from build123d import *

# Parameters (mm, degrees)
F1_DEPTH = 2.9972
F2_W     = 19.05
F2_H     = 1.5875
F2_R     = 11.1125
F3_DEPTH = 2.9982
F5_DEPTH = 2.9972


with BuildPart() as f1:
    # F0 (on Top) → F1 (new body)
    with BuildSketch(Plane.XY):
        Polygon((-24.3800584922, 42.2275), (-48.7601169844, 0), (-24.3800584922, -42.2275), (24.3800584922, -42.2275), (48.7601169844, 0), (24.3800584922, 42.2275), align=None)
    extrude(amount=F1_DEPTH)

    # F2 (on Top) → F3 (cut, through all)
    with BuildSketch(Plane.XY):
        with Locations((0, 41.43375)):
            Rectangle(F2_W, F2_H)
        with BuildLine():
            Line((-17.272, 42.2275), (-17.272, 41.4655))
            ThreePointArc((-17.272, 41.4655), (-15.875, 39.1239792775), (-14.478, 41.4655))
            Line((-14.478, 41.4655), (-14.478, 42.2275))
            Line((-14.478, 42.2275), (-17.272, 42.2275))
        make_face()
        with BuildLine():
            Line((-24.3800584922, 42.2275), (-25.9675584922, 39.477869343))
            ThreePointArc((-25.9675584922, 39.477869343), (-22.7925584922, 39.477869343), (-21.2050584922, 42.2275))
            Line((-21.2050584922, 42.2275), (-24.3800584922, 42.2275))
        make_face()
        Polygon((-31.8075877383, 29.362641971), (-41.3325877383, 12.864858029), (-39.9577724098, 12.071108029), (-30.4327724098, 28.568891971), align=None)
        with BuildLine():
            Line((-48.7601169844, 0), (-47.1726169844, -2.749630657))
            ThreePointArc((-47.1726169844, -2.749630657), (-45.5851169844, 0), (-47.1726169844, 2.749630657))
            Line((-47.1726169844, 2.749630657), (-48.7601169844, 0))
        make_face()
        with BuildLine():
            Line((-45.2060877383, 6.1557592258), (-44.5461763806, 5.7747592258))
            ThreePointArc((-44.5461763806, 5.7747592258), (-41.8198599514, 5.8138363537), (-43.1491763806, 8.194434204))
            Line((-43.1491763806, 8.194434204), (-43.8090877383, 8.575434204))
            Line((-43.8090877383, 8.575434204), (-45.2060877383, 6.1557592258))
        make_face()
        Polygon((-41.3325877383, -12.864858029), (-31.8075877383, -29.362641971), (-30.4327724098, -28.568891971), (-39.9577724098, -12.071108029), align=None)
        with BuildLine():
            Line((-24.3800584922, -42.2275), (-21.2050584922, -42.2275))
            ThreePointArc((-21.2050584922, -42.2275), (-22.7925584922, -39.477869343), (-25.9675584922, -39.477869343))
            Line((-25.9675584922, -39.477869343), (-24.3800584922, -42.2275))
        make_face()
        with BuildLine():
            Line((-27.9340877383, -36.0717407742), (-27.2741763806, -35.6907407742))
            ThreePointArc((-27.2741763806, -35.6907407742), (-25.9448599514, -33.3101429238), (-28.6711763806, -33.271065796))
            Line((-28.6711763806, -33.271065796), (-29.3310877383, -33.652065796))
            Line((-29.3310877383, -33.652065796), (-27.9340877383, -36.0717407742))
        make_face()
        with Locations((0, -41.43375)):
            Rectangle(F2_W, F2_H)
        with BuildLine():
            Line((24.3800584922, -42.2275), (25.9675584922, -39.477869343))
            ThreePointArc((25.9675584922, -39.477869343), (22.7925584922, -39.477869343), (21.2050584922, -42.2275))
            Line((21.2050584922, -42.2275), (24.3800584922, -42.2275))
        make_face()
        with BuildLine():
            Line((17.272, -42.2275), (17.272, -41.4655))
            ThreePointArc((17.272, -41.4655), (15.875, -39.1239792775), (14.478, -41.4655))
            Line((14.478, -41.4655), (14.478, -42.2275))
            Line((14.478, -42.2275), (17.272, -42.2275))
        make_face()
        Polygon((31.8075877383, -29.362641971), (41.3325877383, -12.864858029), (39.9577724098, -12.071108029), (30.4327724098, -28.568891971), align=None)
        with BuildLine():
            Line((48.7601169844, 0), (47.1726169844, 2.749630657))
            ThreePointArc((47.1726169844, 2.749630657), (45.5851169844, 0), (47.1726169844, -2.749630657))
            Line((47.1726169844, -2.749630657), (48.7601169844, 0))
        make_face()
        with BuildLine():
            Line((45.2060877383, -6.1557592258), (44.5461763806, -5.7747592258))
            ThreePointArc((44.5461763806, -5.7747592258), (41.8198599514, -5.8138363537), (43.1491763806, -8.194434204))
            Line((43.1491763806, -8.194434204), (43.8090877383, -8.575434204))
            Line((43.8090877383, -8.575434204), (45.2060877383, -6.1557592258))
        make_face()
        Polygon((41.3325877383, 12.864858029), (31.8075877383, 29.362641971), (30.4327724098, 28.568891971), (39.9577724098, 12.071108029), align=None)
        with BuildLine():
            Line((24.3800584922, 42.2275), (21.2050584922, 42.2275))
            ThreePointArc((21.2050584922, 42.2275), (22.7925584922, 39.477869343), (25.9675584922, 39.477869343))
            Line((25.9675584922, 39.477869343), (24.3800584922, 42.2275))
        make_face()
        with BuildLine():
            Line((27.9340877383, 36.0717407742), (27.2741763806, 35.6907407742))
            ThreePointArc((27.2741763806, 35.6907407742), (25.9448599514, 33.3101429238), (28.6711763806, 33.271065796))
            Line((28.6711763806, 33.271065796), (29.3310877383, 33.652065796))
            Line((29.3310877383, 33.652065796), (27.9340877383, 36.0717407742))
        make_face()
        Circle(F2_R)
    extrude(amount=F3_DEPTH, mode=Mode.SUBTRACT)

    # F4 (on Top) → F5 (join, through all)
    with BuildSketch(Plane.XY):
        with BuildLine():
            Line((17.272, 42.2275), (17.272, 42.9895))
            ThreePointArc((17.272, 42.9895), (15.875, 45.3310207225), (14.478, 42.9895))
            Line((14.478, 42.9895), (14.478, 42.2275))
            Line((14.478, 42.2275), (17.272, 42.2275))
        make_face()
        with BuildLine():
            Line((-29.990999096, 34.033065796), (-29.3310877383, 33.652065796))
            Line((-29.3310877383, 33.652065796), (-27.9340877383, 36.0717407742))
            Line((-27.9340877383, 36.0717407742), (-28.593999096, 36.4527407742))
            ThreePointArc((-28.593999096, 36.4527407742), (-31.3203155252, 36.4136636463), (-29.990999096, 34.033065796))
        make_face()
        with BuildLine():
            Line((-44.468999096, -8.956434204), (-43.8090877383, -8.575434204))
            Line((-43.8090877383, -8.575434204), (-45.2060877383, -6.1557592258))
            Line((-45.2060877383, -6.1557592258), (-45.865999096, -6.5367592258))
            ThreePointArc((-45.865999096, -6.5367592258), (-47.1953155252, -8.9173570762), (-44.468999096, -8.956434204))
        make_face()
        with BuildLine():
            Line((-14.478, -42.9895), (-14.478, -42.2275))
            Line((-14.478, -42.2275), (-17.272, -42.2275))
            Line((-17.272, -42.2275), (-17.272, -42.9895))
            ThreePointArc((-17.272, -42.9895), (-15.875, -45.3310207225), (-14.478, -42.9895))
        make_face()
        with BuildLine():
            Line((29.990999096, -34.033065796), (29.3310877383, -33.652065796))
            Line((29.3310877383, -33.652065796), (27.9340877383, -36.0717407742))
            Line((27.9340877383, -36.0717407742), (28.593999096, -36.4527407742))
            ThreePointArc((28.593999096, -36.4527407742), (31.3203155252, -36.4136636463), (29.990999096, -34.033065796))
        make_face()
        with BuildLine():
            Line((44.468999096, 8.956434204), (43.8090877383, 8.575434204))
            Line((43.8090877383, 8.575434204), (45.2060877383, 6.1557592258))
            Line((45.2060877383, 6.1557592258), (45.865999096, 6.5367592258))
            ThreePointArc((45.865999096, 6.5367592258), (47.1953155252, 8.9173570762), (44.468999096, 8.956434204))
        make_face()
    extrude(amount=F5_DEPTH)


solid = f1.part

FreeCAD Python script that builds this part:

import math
import FreeCAD as App
import Part
import Sketcher
from FreeCAD import Vector
Q = App.Units.Quantity

doc = App.newDocument("Part")
params = doc.addObject("Spreadsheet::Sheet", "Params")
for row, (alias, value) in enumerate([
    ("pad1_length", "0.118 in"),
    ("sketch2_diameter", "0.875 in"),
    ("sketch2_radius", "0.0625 in"),
    ("sketch2_radius2", "0.125 in"),
    ("sketch2_width", "0.75 in"),
    ("sketch2_width2", "0.11 in"),
    ("sketch3_radius", "0.0625 in"),
    ("sketch3_width", "0.11 in"),
    ("sketch3_height", "0.03 in"),
    ("sketch3_length", "0.03 in"),
    ("sketch3_length2", "0.11 in"),
    ("pad2_length", "0.118 in"),
], start=1):
    params.set(f"A{row}", alias)
    params.set(f"B{row}", "=" + value)
    params.setAlias(f"B{row}", alias)

body = doc.addObject("PartDesign::Body", "Body")

# Sketch on XY plane
sketch1 = doc.addObject("Sketcher::SketchObject", "Sketch")
body.addObject(sketch1)
sketch1.AttachmentSupport = (doc.XY_Plane, [""])
sketch1.MapMode = "FlatFace"
sketch1.addGeometry(Part.LineSegment(Vector(-24, 42, 0), Vector(-49, 0, 0)), False)
sketch1.addGeometry(Part.LineSegment(Vector(-49, 0, 0), Vector(-24, -42, 0)), False)
sketch1.addGeometry(Part.LineSegment(Vector(-24, -42, 0), Vector(24, -42, 0)), False)
sketch1.addGeometry(Part.LineSegment(Vector(24, -42, 0), Vector(49, 0, 0)), False)
sketch1.addGeometry(Part.LineSegment(Vector(49, 0, 0), Vector(24, 42, 0)), False)
sketch1.addGeometry(Part.LineSegment(Vector(24, 42, 0), Vector(-24, 42, 0)), False)
sketch1.addConstraint(Sketcher.Constraint("Coincident", 0, 2, 1, 1))
sketch1.addConstraint(Sketcher.Constraint("Coincident", 1, 2, 2, 1))
sketch1.addConstraint(Sketcher.Constraint("Coincident", 2, 2, 3, 1))
sketch1.addConstraint(Sketcher.Constraint("Coincident", 3, 2, 4, 1))
sketch1.addConstraint(Sketcher.Constraint("Coincident", 4, 2, 5, 1))
sketch1.addConstraint(Sketcher.Constraint("Coincident", 5, 2, 0, 1))
sketch1.addConstraint(Sketcher.Constraint("Horizontal", 2))
sketch1.addConstraint(Sketcher.Constraint("Horizontal", 5))
sketch1.addConstraint(Sketcher.Constraint("Symmetric", 0, 2, 3, 2, -1, 1))
sketch1.addConstraint(Sketcher.Constraint("Symmetric", 1, 2, 4, 2, -1, 1))
sketch1.addConstraint(Sketcher.Constraint("PointOnObject", 0, 2, -1))
sketch1.addConstraint(Sketcher.Constraint("Parallel", 0, 3))
sketch1.addConstraint(Sketcher.Constraint("Vertical", 2, 2, 4, 2))
sketch1.addConstraint(Sketcher.Constraint("Angle", 0, Q("-120 deg")))
sketch1.addConstraint(Sketcher.Constraint("DistanceY", 2, 2, 4, 2, Q("3.325 in")))
sketch1.addConstraint(Sketcher.Constraint("DistanceX", 2, 1, 2, 2, 48.760117))
pad1 = doc.addObject("PartDesign::Pad", "Pad")
body.addObject(pad1)
pad1.Profile = sketch1
pad1.setExpression("Length", "Params.pad1_length")

# Sketch on XY plane
sketch2 = doc.addObject("Sketcher::SketchObject", "Sketch001")
body.addObject(sketch2)
sketch2.AttachmentSupport = (doc.XY_Plane, [""])
sketch2.MapMode = "FlatFace"
sketch2.addGeometry(Part.LineSegment(Vector(-9.5, 42.2, 0), Vector(-9.5, 40.6, 0)), False)
sketch2.addGeometry(Part.LineSegment(Vector(-9.5, 40.6, 0), Vector(9.5, 40.6, 0)), False)
sketch2.addGeometry(Part.LineSegment(Vector(9.5, 40.6, 0), Vector(9.5, 42.2, 0)), False)
sketch2.addGeometry(Part.LineSegment(Vector(9.5, 42.2, 0), Vector(-9.5, 42.2, 0)), False)
sketch2.addGeometry(Part.LineSegment(Vector(-17.3, 42.2, 0), Vector(-17.3, 41.5, 0)), False)
sketch2.addGeometry(Part.ArcOfCircle(Part.Circle(Vector(-15.9, 40.7, 0), Vector(0, 0, 1), 1.6), math.radians(152), math.radians(388)), False)
sketch2.addGeometry(Part.LineSegment(Vector(-14.5, 41.5, 0), Vector(-14.5, 42.2, 0)), False)
sketch2.addGeometry(Part.LineSegment(Vector(-14.5, 42.2, 0), Vector(-17.3, 42.2, 0)), False)
sketch2.addGeometry(Part.LineSegment(Vector(-24.4, 42.2, 0), Vector(-26, 39.5, 0)), False)
sketch2.addGeometry(Part.ArcOfCircle(Part.Circle(Vector(-24.4, 42.2, 0), Vector(0, 0, 1), 3.2), math.radians(-120), math.radians(0)), False)
sketch2.addGeometry(Part.LineSegment(Vector(-21.2, 42.2, 0), Vector(-24.4, 42.2, 0)), False)
sketch2.addGeometry(Part.LineSegment(Vector(-31.8, 29.4, 0), Vector(-41.3, 12.9, 0)), False)
sketch2.addGeometry(Part.LineSegment(Vector(-41.3, 12.9, 0), Vector(-40, 12.1, 0)), False)
sketch2.addGeometry(Part.LineSegment(Vector(-40, 12.1, 0), Vector(-30.4, 28.6, 0)), False)
sketch2.addGeometry(Part.LineSegment(Vector(-30.4, 28.6, 0), Vector(-31.8, 29.4, 0)), False)
sketch2.addGeometry(Part.LineSegment(Vector(-48.8, 0, 0), Vector(-47.2, -2.7, 0)), False)
sketch2.addGeometry(Part.ArcOfCircle(Part.Circle(Vector(-48.8, 0, 0), Vector(0, 0, 1), 3.2), math.radians(-60), math.radians(60)), False)
sketch2.addGeometry(Part.LineSegment(Vector(-47.2, 2.7, 0), Vector(-48.8, 0, 0)), False)
sketch2.addGeometry(Part.LineSegment(Vector(-45.2, 6.2, 0), Vector(-44.5, 5.8, 0)), False)
sketch2.addGeometry(Part.ArcOfCircle(Part.Circle(Vector(-43.2, 6.6, 0), Vector(0, 0, 1), 1.6), math.radians(-148), math.radians(88)), False)
sketch2.addGeometry(Part.LineSegment(Vector(-43.1, 8.2, 0), Vector(-43.8, 8.6, 0)), False)
sketch2.addGeometry(Part.LineSegment(Vector(-43.8, 8.6, 0), Vector(-45.2, 6.2, 0)), False)
sketch2.addGeometry(Part.LineSegment(Vector(-41.3, -12.9, 0), Vector(-31.8, -29.4, 0)), False)
sketch2.addGeometry(Part.LineSegment(Vector(-31.8, -29.4, 0), Vector(-30.4, -28.6, 0)), False)
sketch2.addGeometry(Part.LineSegment(Vector(-30.4, -28.6, 0), Vector(-40, -12.1, 0)), False)
sketch2.addGeometry(Part.LineSegment(Vector(-40, -12.1, 0), Vector(-41.3, -12.9, 0)), False)
sketch2.addGeometry(Part.LineSegment(Vector(-24.4, -42.2, 0), Vector(-21.2, -42.2, 0)), False)
sketch2.addGeometry(Part.ArcOfCircle(Part.Circle(Vector(-24.4, -42.2, 0), Vector(0, 0, 1), 3.2), math.radians(0), math.radians(120)), False)
sketch2.addGeometry(Part.LineSegment(Vector(-26, -39.5, 0), Vector(-24.4, -42.2, 0)), False)
sketch2.addGeometry(Part.LineSegment(Vector(-27.9, -36.1, 0), Vector(-27.3, -35.7, 0)), False)
sketch2.addGeometry(Part.ArcOfCircle(Part.Circle(Vector(-27.3, -34.1, 0), Vector(0, 0, 1), 1.6), math.radians(-88), math.radians(148)), False)
sketch2.addGeometry(Part.LineSegment(Vector(-28.7, -33.3, 0), Vector(-29.3, -33.7, 0)), False)
sketch2.addGeometry(Part.LineSegment(Vector(-29.3, -33.7, 0), Vector(-27.9, -36.1, 0)), False)
sketch2.addGeometry(Part.LineSegment(Vector(-9.5, -40.6, 0), Vector(-9.5, -42.2, 0)), False)
sketch2.addGeometry(Part.LineSegment(Vector(-9.5, -42.2, 0), Vector(9.5, -42.2, 0)), False)
sketch2.addGeometry(Part.LineSegment(Vector(9.5, -42.2, 0), Vector(9.5, -40.6, 0)), False)
sketch2.addGeometry(Part.LineSegment(Vector(9.5, -40.6, 0), Vector(-9.5, -40.6, 0)), False)
sketch2.addGeometry(Part.LineSegment(Vector(24.4, -42.2, 0), Vector(26, -39.5, 0)), False)
sketch2.addGeometry(Part.ArcOfCircle(Part.Circle(Vector(24.4, -42.2, 0), Vector(0, 0, 1), 3.2), math.radians(60), math.radians(180)), False)
sketch2.addGeometry(Part.LineSegment(Vector(21.2, -42.2, 0), Vector(24.4, -42.2, 0)), False)
sketch2.addGeometry(Part.LineSegment(Vector(17.3, -42.2, 0), Vector(17.3, -41.5, 0)), False)
sketch2.addGeometry(Part.ArcOfCircle(Part.Circle(Vector(15.9, -40.7, 0), Vector(0, 0, 1), 1.6), math.radians(-28), math.radians(208)), False)
sketch2.addGeometry(Part.LineSegment(Vector(14.5, -41.5, 0), Vector(14.5, -42.2, 0)), False)
sketch2.addGeometry(Part.LineSegment(Vector(14.5, -42.2, 0), Vector(17.3, -42.2, 0)), False)
sketch2.addGeometry(Part.LineSegment(Vector(31.8, -29.4, 0), Vector(41.3, -12.9, 0)), False)
sketch2.addGeometry(Part.LineSegment(Vector(41.3, -12.9, 0), Vector(40, -12.1, 0)), False)
sketch2.addGeometry(Part.LineSegment(Vector(40, -12.1, 0), Vector(30.4, -28.6, 0)), False)
sketch2.addGeometry(Part.LineSegment(Vector(30.4, -28.6, 0), Vector(31.8, -29.4, 0)), False)
sketch2.addGeometry(Part.LineSegment(Vector(48.8, 0, 0), Vector(47.2, 2.7, 0)), False)
sketch2.addGeometry(Part.ArcOfCircle(Part.Circle(Vector(48.8, 0, 0), Vector(0, 0, 1), 3.2), math.radians(120), math.radians(240)), False)
sketch2.addGeometry(Part.LineSegment(Vector(47.2, -2.7, 0), Vector(48.8, 0, 0)), False)
sketch2.addGeometry(Part.LineSegment(Vector(45.2, -6.2, 0), Vector(44.5, -5.8, 0)), False)
sketch2.addGeometry(Part.ArcOfCircle(Part.Circle(Vector(43.2, -6.6, 0), Vector(0, 0, 1), 1.6), math.radians(32), math.radians(268)), False)
sketch2.addGeometry(Part.LineSegment(Vector(43.1, -8.2, 0), Vector(43.8, -8.6, 0)), False)
sketch2.addGeometry(Part.LineSegment(Vector(43.8, -8.6, 0), Vector(45.2, -6.2, 0)), False)
sketch2.addGeometry(Part.LineSegment(Vector(41.3, 12.9, 0), Vector(31.8, 29.4, 0)), False)
sketch2.addGeometry(Part.LineSegment(Vector(31.8, 29.4, 0), Vector(30.4, 28.6, 0)), False)
sketch2.addGeometry(Part.LineSegment(Vector(30.4, 28.6, 0), Vector(40, 12.1, 0)), False)
sketch2.addGeometry(Part.LineSegment(Vector(40, 12.1, 0), Vector(41.3, 12.9, 0)), False)
sketch2.addGeometry(Part.LineSegment(Vector(24.4, 42.2, 0), Vector(21.2, 42.2, 0)), False)
sketch2.addGeometry(Part.ArcOfCircle(Part.Circle(Vector(24.4, 42.2, 0), Vector(0, 0, 1), 3.2), math.radians(180), math.radians(300)), False)
sketch2.addGeometry(Part.LineSegment(Vector(26, 39.5, 0), Vector(24.4, 42.2, 0)), False)
sketch2.addGeometry(Part.LineSegment(Vector(27.9, 36.1, 0), Vector(27.3, 35.7, 0)), False)
sketch2.addGeometry(Part.ArcOfCircle(Part.Circle(Vector(27.3, 34.1, 0), Vector(0, 0, 1), 1.6), math.radians(92), math.radians(328)), False)
sketch2.addGeometry(Part.LineSegment(Vector(28.7, 33.3, 0), Vector(29.3, 33.7, 0)), False)
sketch2.addGeometry(Part.LineSegment(Vector(29.3, 33.7, 0), Vector(27.9, 36.1, 0)), False)
sketch2.addGeometry(Part.Circle(Vector(0, 0, 0), Vector(0, 0, 1), 11.1), False)
sketch2.addConstraint(Sketcher.Constraint("Coincident", 0, 2, 1, 1))
sketch2.addConstraint(Sketcher.Constraint("Coincident", 1, 2, 2, 1))
sketch2.addConstraint(Sketcher.Constraint("Coincident", 2, 2, 3, 1))
sketch2.addConstraint(Sketcher.Constraint("Coincident", 3, 2, 0, 1))
sketch2.addConstraint(Sketcher.Constraint("Coincident", 4, 2, 5, 1))
sketch2.addConstraint(Sketcher.Constraint("Coincident", 5, 2, 6, 1))
sketch2.addConstraint(Sketcher.Constraint("Coincident", 6, 2, 7, 1))
sketch2.addConstraint(Sketcher.Constraint("Coincident", 7, 2, 4, 1))
sketch2.addConstraint(Sketcher.Constraint("Coincident", 8, 2, 9, 1))
sketch2.addConstraint(Sketcher.Constraint("Coincident", 9, 2, 10, 1))
sketch2.addConstraint(Sketcher.Constraint("Coincident", 10, 2, 8, 1))
sketch2.addConstraint(Sketcher.Constraint("Coincident", 11, 2, 12, 1))
sketch2.addConstraint(Sketcher.Constraint("Coincident", 12, 2, 13, 1))
sketch2.addConstraint(Sketcher.Constraint("Coincident", 13, 2, 14, 1))
sketch2.addConstraint(Sketcher.Constraint("Coincident", 14, 2, 11, 1))
sketch2.addConstraint(Sketcher.Constraint("Coincident", 15, 2, 16, 1))
sketch2.addConstraint(Sketcher.Constraint("Coincident", 16, 2, 17, 1))
sketch2.addConstraint(Sketcher.Constraint("Coincident", 17, 2, 15, 1))
sketch2.addConstraint(Sketcher.Constraint("Coincident", 18, 2, 19, 1))
sketch2.addConstraint(Sketcher.Constraint("Coincident", 19, 2, 20, 1))
sketch2.addConstraint(Sketcher.Constraint("Coincident", 20, 2, 21, 1))
sketch2.addConstraint(Sketcher.Constraint("Coincident", 21, 2, 18, 1))
sketch2.addConstraint(Sketcher.Constraint("Coincident", 22, 2, 23, 1))
sketch2.addConstraint(Sketcher.Constraint("Coincident", 23, 2, 24, 1))
sketch2.addConstraint(Sketcher.Constraint("Coincident", 24, 2, 25, 1))
sketch2.addConstraint(Sketcher.Constraint("Coincident", 25, 2, 22, 1))
sketch2.addConstraint(Sketcher.Constraint("Coincident", 26, 2, 27, 1))
sketch2.addConstraint(Sketcher.Constraint("Coincident", 27, 2, 28, 1))
sketch2.addConstraint(Sketcher.Constraint("Coincident", 28, 2, 26, 1))
sketch2.addConstraint(Sketcher.Constraint("Coincident", 29, 2, 30, 1))
sketch2.addConstraint(Sketcher.Constraint("Coincident", 30, 2, 31, 1))
sketch2.addConstraint(Sketcher.Constraint("Coincident", 31, 2, 32, 1))
sketch2.addConstraint(Sketcher.Constraint("Coincident", 32, 2, 29, 1))
sketch2.addConstraint(Sketcher.Constraint("Coincident", 33, 2, 34, 1))
sketch2.addConstraint(Sketcher.Constraint("Coincident", 34, 2, 35, 1))
sketch2.addConstraint(Sketcher.Constraint("Coincident", 35, 2, 36, 1))
sketch2.addConstraint(Sketcher.Constraint("Coincident", 36, 2, 33, 1))
sketch2.addConstraint(Sketcher.Constraint("Coincident", 37, 2, 38, 1))
sketch2.addConstraint(Sketcher.Constraint("Coincident", 38, 2, 39, 1))
sketch2.addConstraint(Sketcher.Constraint("Coincident", 39, 2, 37, 1))
sketch2.addConstraint(Sketcher.Constraint("Coincident", 40, 2, 41, 1))
sketch2.addConstraint(Sketcher.Constraint("Coincident", 41, 2, 42, 1))
sketch2.addConstraint(Sketcher.Constraint("Coincident", 42, 2, 43, 1))
sketch2.addConstraint(Sketcher.Constraint("Coincident", 43, 2, 40, 1))
sketch2.addConstraint(Sketcher.Constraint("Coincident", 44, 2, 45, 1))
sketch2.addConstraint(Sketcher.Constraint("Coincident", 45, 2, 46, 1))
sketch2.addConstraint(Sketcher.Constraint("Coincident", 46, 2, 47, 1))
sketch2.addConstraint(Sketcher.Constraint("Coincident", 47, 2, 44, 1))
sketch2.addConstraint(Sketcher.Constraint("Coincident", 48, 2, 49, 1))
sketch2.addConstraint(Sketcher.Constraint("Coincident", 49, 2, 50, 1))
sketch2.addConstraint(Sketcher.Constraint("Coincident", 50, 2, 48, 1))
sketch2.addConstraint(Sketcher.Constraint("Coincident", 51, 2, 52, 1))
sketch2.addConstraint(Sketcher.Constraint("Coincident", 52, 2, 53, 1))
sketch2.addConstraint(Sketcher.Constraint("Coincident", 53, 2, 54, 1))
sketch2.addConstraint(Sketcher.Constraint("Coincident", 54, 2, 51, 1))
sketch2.addConstraint(Sketcher.Constraint("Coincident", 55, 2, 56, 1))
sketch2.addConstraint(Sketcher.Constraint("Coincident", 56, 2, 57, 1))
sketch2.addConstraint(Sketcher.Constraint("Coincident", 57, 2, 58, 1))
sketch2.addConstraint(Sketcher.Constraint("Coincident", 58, 2, 55, 1))
sketch2.addConstraint(Sketcher.Constraint("Coincident", 59, 2, 60, 1))
sketch2.addConstraint(Sketcher.Constraint("Coincident", 60, 2, 61, 1))
sketch2.addConstraint(Sketcher.Constraint("Coincident", 61, 2, 59, 1))
sketch2.addConstraint(Sketcher.Constraint("Coincident", 62, 2, 63, 1))
sketch2.addConstraint(Sketcher.Constraint("Coincident", 63, 2, 64, 1))
sketch2.addConstraint(Sketcher.Constraint("Coincident", 64, 2, 65, 1))
sketch2.addConstraint(Sketcher.Constraint("Coincident", 65, 2, 62, 1))
sketch2.addConstraint(Sketcher.Constraint("Vertical", 0))
sketch2.addConstraint(Sketcher.Constraint("Horizontal", 1))
sketch2.addConstraint(Sketcher.Constraint("Vertical", 2))
sketch2.addConstraint(Sketcher.Constraint("Horizontal", 3))
sketch2.addConstraint(Sketcher.Constraint("Vertical", 4))
sketch2.addConstraint(Sketcher.Constraint("Vertical", 6))
sketch2.addConstraint(Sketcher.Constraint("Horizontal", 7))
sketch2.addConstraint(Sketcher.Constraint("Horizontal", 10))
sketch2.addConstraint(Sketcher.Constraint("Horizontal", 26))
sketch2.addConstraint(Sketcher.Constraint("Vertical", 33))
sketch2.addConstraint(Sketcher.Constraint("Horizontal", 34))
sketch2.addConstraint(Sketcher.Constraint("Vertical", 35))
sketch2.addConstraint(Sketcher.Constraint("Horizontal", 36))
sketch2.addConstraint(Sketcher.Constraint("Horizontal", 39))
sketch2.addConstraint(Sketcher.Constraint("Vertical", 40))
sketch2.addConstraint(Sketcher.Constraint("Vertical", 42))
sketch2.addConstraint(Sketcher.Constraint("Horizontal", 43))
sketch2.addConstraint(Sketcher.Constraint("Horizontal", 59))
sketch2.addConstraint(Sketcher.Constraint("Coincident", 66, 3, -1, 1))
sketch2.addConstraint(Sketcher.Constraint("Coincident", 10, 2, 9, 3))
sketch2.addConstraint(Sketcher.Constraint("Coincident", 17, 2, 16, 3))
sketch2.addConstraint(Sketcher.Constraint("Coincident", 28, 2, 27, 3))
sketch2.addConstraint(Sketcher.Constraint("Coincident", 39, 2, 38, 3))
sketch2.addConstraint(Sketcher.Constraint("Coincident", 50, 2, 49, 3))
sketch2.addConstraint(Sketcher.Constraint("Coincident", 61, 2, 60, 3))
sketch2.addConstraint(Sketcher.Constraint("Equal", 9, 16))
sketch2.addConstraint(Sketcher.Constraint("Equal", 5, 19))
sketch2.addConstraint(Sketcher.Constraint("Equal", 16, 27))
sketch2.addConstraint(Sketcher.Constraint("Equal", 19, 30))
sketch2.addConstraint(Sketcher.Constraint("Equal", 27, 38))
sketch2.addConstraint(Sketcher.Constraint("Equal", 30, 41))
sketch2.addConstraint(Sketcher.Constraint("Equal", 38, 49))
sketch2.addConstraint(Sketcher.Constraint("Equal", 41, 52))
sketch2.addConstraint(Sketcher.Constraint("Equal", 49, 60))
sketch2.addConstraint(Sketcher.Constraint("Equal", 52, 63))
sketch2.addConstraint(Sketcher.Constraint("Symmetric", 9, 3, 38, 3, -1, 1))
sketch2.addConstraint(Sketcher.Constraint("Symmetric", 5, 3, 41, 3, -1, 1))
sketch2.addConstraint(Sketcher.Constraint("Symmetric", 16, 3, 49, 3, -1, 1))
sketch2.addConstraint(Sketcher.Constraint("Symmetric", 19, 3, 52, 3, -1, 1))
sketch2.addConstraint(Sketcher.Constraint("Symmetric", 27, 3, 60, 3, -1, 1))
sketch2.addConstraint(Sketcher.Constraint("Symmetric", 30, 3, 63, 3, -1, 1))
sketch2.addConstraint(Sketcher.Constraint("Symmetric", 2, 2, 33, 2, -1, 1))
sketch2.addConstraint(Sketcher.Constraint("Symmetric", 0, 2, 35, 2, -1, 1))
sketch2.addConstraint(Sketcher.Constraint("Symmetric", 6, 2, 42, 2, -1, 1))
sketch2.addConstraint(Sketcher.Constraint("Symmetric", 11, 2, 44, 2, -1, 1))
sketch2.addConstraint(Sketcher.Constraint("Symmetric", 12, 2, 45, 2, -1, 1))
sketch2.addConstraint(Sketcher.Constraint("Symmetric", 13, 2, 46, 2, -1, 1))
sketch2.addConstraint(Sketcher.Constraint("Symmetric", 14, 2, 47, 2, -1, 1))
sketch2.addConstraint(Sketcher.Constraint("Symmetric", 20, 2, 53, 2, -1, 1))
sketch2.addConstraint(Sketcher.Constraint("Symmetric", 21, 2, 54, 2, -1, 1))
sketch2.addConstraint(Sketcher.Constraint("Symmetric", 22, 2, 55, 2, -1, 1))
sketch2.addConstraint(Sketcher.Constraint("Symmetric", 23, 2, 56, 2, -1, 1))
sketch2.addConstraint(Sketcher.Constraint("Symmetric", 24, 2, 57, 2, -1, 1))
sketch2.addConstraint(Sketcher.Constraint("Symmetric", 25, 2, 58, 2, -1, 1))
sketch2.addConstraint(Sketcher.Constraint("Symmetric", 31, 2, 64, 2, -1, 1))
sketch2.addConstraint(Sketcher.Constraint("Symmetric", 32, 2, 65, 2, -1, 1))
sketch2.addConstraint(Sketcher.Constraint("Symmetric", 27, 3, 38, 3, -2))
sketch2.addConstraint(Sketcher.Constraint("Symmetric", 25, 2, 44, 2, -2))
sketch2.addConstraint(Sketcher.Constraint("Symmetric", 24, 2, 45, 2, -2))
sketch2.addConstraint(Sketcher.Constraint("Symmetric", 23, 2, 46, 2, -2))
sketch2.addConstraint(Sketcher.Constraint("Symmetric", 22, 2, 47, 2, -2))
sketch2.addConstraint(Sketcher.Constraint("Symmetric", 16, 2, 48, 2, -2))
sketch2.addConstraint(Sketcher.Constraint("Parallel", 8, 11))
sketch2.addConstraint(Sketcher.Constraint("Perpendicular", 11, 12))
sketch2.addConstraint(Sketcher.Constraint("Perpendicular", 12, 13))
sketch2.addConstraint(Sketcher.Constraint("Perpendicular", 13, 14))
sketch2.addConstraint(Sketcher.Constraint("Perpendicular", 14, 17))
sketch2.addConstraint(Sketcher.Constraint("Perpendicular", 17, 18))
sketch2.addConstraint(Sketcher.Constraint("Parallel", 18, 20))
sketch2.addConstraint(Sketcher.Constraint("Perpendicular", 20, 21))
sketch2.addConstraint(Sketcher.Constraint("Parallel", 15, 22))
sketch2.addConstraint(Sketcher.Constraint("Perpendicular", 25, 28))
sketch2.addConstraint(Sketcher.Constraint("Perpendicular", 28, 29))
sketch2.addConstraint(Sketcher.Constraint("Parallel", 29, 31))
sketch2.addConstraint(Sketcher.Constraint("Perpendicular", 31, 32))
sketch2.addConstraint(Sketcher.Constraint("Parallel", 21, 37))
sketch2.addConstraint(Sketcher.Constraint("Perpendicular", 47, 50))
sketch2.addConstraint(Sketcher.Constraint("Perpendicular", 50, 51))
sketch2.addConstraint(Sketcher.Constraint("Parallel", 51, 53))
sketch2.addConstraint(Sketcher.Constraint("Perpendicular", 58, 61))
sketch2.addConstraint(Sketcher.Constraint("Perpendicular", 61, 62))
sketch2.addConstraint(Sketcher.Constraint("Parallel", 62, 64))
sketch2.addConstraint(Sketcher.Constraint("Horizontal", 60, 3, 2, 2))
sketch2.addConstraint(Sketcher.Constraint("Horizontal", 4, 2, 5, 2))
sketch2.addConstraint(Sketcher.Constraint("Horizontal", 3, 2, 6, 2))
sketch2.addConstraint(Sketcher.Constraint("Horizontal", 40, 2, 41, 2))
sketch2.addConstraint(Sketcher.Constraint("Vertical", 3, 2, 33, 2))
sketch2.addConstraint(Sketcher.Constraint("Equal", 18, 20))
sketch2.addConstraint(Sketcher.Constraint("Equal", 20, 29))
sketch2.addConstraint(Sketcher.Constraint("Equal", 29, 31))
sketch2.addConstraint(Sketcher.Constraint("Equal", 21, 32))
sketch2.addConstraint(Sketcher.Constraint("Diameter", 66, Q("0.875 in")))
sketch2.addConstraint(Sketcher.Constraint("Angle", 8, Q("-120 deg")))
sketch2.addConstraint(Sketcher.Constraint("Radius", 5, Q("0.0625 in")))
sketch2.addConstraint(Sketcher.Constraint("Radius", 9, Q("0.125 in")))
sketch2.addConstraint(Sketcher.Constraint("DistanceX", 1, 1, 1, 2, Q("0.75 in")))
sketch2.addConstraint(Sketcher.Constraint("DistanceX", 7, 2, 7, 1, Q("0.11 in")))
sketch2.addConstraint(Sketcher.Constraint("DistanceY", 4, 2, 4, 1, Q("0.03 in")))
sketch2.addConstraint(Sketcher.Constraint("DistanceY", -1, 1, 0, 2, Q("1.6 in")))
sketch2.addConstraint(Sketcher.Constraint("Distance", 11, Q("0.75 in")))
sketch2.addConstraint(Sketcher.Constraint("Distance", 18, Q("0.03 in")))
sketch2.addConstraint(Sketcher.Constraint("Distance", 21, Q("0.11 in")))
sketch2.addConstraint(Sketcher.Constraint("DistanceY", 0, 2, 0, 1, Q("0.0625 in")))
sketch2.addConstraint(Sketcher.Constraint("DistanceX", 4, 2, -1, 1, Q("0.68 in")))
sketch2.addConstraint(Sketcher.Constraint("Distance", 12, Q("0.0625 in")))
sketch2.addConstraint(Sketcher.Constraint("DistanceX", 9, 3, -1, 1, 24.380058))
sketch2.addConstraint(Sketcher.Constraint("DistanceY", -1, 1, 11, 2, 12.864858))
sketch2.addConstraint(Sketcher.Constraint("DistanceY", -1, 1, 18, 2, 5.774759))
sketch2.addConstraint(Sketcher.Constraint("DistanceY", 29, 2, -1, 1, 35.690741))
sketch2.addConstraint(Sketcher.Constraint("DistanceX", 16, 3, -1, 1, 48.760117))
sketch2.addConstraint(Sketcher.Constraint("DistanceX", 19, 3, -1, 1, 43.194675))
sketch2.addConstraint(Sketcher.Constraint("DistanceX", 30, 3, -1, 1, 27.319675))
sketch2.addConstraint(Sketcher.Constraint("DistanceX", 11, 2, -1, 1, 41.332588))
sketch2.setExpression("Constraints[157]", "Params.sketch2_diameter")
sketch2.setExpression("Constraints[159]", "Params.sketch2_radius")
sketch2.setExpression("Constraints[160]", "Params.sketch2_radius2")
sketch2.setExpression("Constraints[161]", "Params.sketch2_width")
sketch2.setExpression("Constraints[162]", "Params.sketch2_width2")
pocket1 = doc.addObject("PartDesign::Pocket", "Pocket")
body.addObject(pocket1)
pocket1.Profile = sketch2
pocket1.Type = "ThroughAll"
pocket1.Reversed = True

# Sketch on XY plane
sketch3 = doc.addObject("Sketcher::SketchObject", "Sketch002")
body.addObject(sketch3)
sketch3.AttachmentSupport = (doc.XY_Plane, [""])
sketch3.MapMode = "FlatFace"
sketch3.addGeometry(Part.LineSegment(Vector(17.3, 42.2, 0), Vector(17.3, 43, 0)), False)
sketch3.addGeometry(Part.ArcOfCircle(Part.Circle(Vector(15.9, 43.7, 0), Vector(0, 0, 1), 1.6), math.radians(-28), math.radians(208)), False)
sketch3.addGeometry(Part.LineSegment(Vector(14.5, 43, 0), Vector(14.5, 42.2, 0)), False)
sketch3.addGeometry(Part.LineSegment(Vector(14.5, 42.2, 0), Vector(17.3, 42.2, 0)), False)
sketch3.addGeometry(Part.LineSegment(Vector(-30, 34, 0), Vector(-29.3, 33.7, 0)), False)
sketch3.addGeometry(Part.LineSegment(Vector(-29.3, 33.7, 0), Vector(-27.9, 36.1, 0)), False)
sketch3.addGeometry(Part.LineSegment(Vector(-27.9, 36.1, 0), Vector(-28.6, 36.5, 0)), False)
sketch3.addGeometry(Part.ArcOfCircle(Part.Circle(Vector(-29.9, 35.6, 0), Vector(0, 0, 1), 1.6), math.radians(32), math.radians(268)), False)
sketch3.addGeometry(Part.LineSegment(Vector(-44.5, -9, 0), Vector(-43.8, -8.6, 0)), False)
sketch3.addGeometry(Part.LineSegment(Vector(-43.8, -8.6, 0), Vector(-45.2, -6.2, 0)), False)
sketch3.addGeometry(Part.LineSegment(Vector(-45.2, -6.2, 0), Vector(-45.9, -6.5, 0)), False)
sketch3.addGeometry(Part.ArcOfCircle(Part.Circle(Vector(-45.8, -8.1, 0), Vector(0, 0, 1), 1.6), math.radians(92), math.radians(328)), False)
sketch3.addGeometry(Part.LineSegment(Vector(-14.5, -43, 0), Vector(-14.5, -42.2, 0)), False)
sketch3.addGeometry(Part.LineSegment(Vector(-14.5, -42.2, 0), Vector(-17.3, -42.2, 0)), False)
sketch3.addGeometry(Part.LineSegment(Vector(-17.3, -42.2, 0), Vector(-17.3, -43, 0)), False)
sketch3.addGeometry(Part.ArcOfCircle(Part.Circle(Vector(-15.9, -43.7, 0), Vector(0, 0, 1), 1.6), math.radians(152), math.radians(388)), False)
sketch3.addGeometry(Part.LineSegment(Vector(30, -34, 0), Vector(29.3, -33.7, 0)), False)
sketch3.addGeometry(Part.LineSegment(Vector(29.3, -33.7, 0), Vector(27.9, -36.1, 0)), False)
sketch3.addGeometry(Part.LineSegment(Vector(27.9, -36.1, 0), Vector(28.6, -36.5, 0)), False)
sketch3.addGeometry(Part.ArcOfCircle(Part.Circle(Vector(29.9, -35.6, 0), Vector(0, 0, 1), 1.6), math.radians(-148), math.radians(88)), False)
sketch3.addGeometry(Part.LineSegment(Vector(44.5, 9, 0), Vector(43.8, 8.6, 0)), False)
sketch3.addGeometry(Part.LineSegment(Vector(43.8, 8.6, 0), Vector(45.2, 6.2, 0)), False)
sketch3.addGeometry(Part.LineSegment(Vector(45.2, 6.2, 0), Vector(45.9, 6.5, 0)), False)
sketch3.addGeometry(Part.ArcOfCircle(Part.Circle(Vector(45.8, 8.1, 0), Vector(0, 0, 1), 1.6), math.radians(-88), math.radians(148)), False)
sketch3.addConstraint(Sketcher.Constraint("Coincident", 0, 2, 1, 1))
sketch3.addConstraint(Sketcher.Constraint("Coincident", 1, 2, 2, 1))
sketch3.addConstraint(Sketcher.Constraint("Coincident", 2, 2, 3, 1))
sketch3.addConstraint(Sketcher.Constraint("Coincident", 3, 2, 0, 1))
sketch3.addConstraint(Sketcher.Constraint("Coincident", 4, 2, 5, 1))
sketch3.addConstraint(Sketcher.Constraint("Coincident", 5, 2, 6, 1))
sketch3.addConstraint(Sketcher.Constraint("Coincident", 6, 2, 7, 1))
sketch3.addConstraint(Sketcher.Constraint("Coincident", 7, 2, 4, 1))
sketch3.addConstraint(Sketcher.Constraint("Coincident", 8, 2, 9, 1))
sketch3.addConstraint(Sketcher.Constraint("Coincident", 9, 2, 10, 1))
sketch3.addConstraint(Sketcher.Constraint("Coincident", 10, 2, 11, 1))
sketch3.addConstraint(Sketcher.Constraint("Coincident", 11, 2, 8, 1))
sketch3.addConstraint(Sketcher.Constraint("Coincident", 12, 2, 13, 1))
sketch3.addConstraint(Sketcher.Constraint("Coincident", 13, 2, 14, 1))
sketch3.addConstraint(Sketcher.Constraint("Coincident", 14, 2, 15, 1))
sketch3.addConstraint(Sketcher.Constraint("Coincident", 15, 2, 12, 1))
sketch3.addConstraint(Sketcher.Constraint("Coincident", 16, 2, 17, 1))
sketch3.addConstraint(Sketcher.Constraint("Coincident", 17, 2, 18, 1))
sketch3.addConstraint(Sketcher.Constraint("Coincident", 18, 2, 19, 1))
sketch3.addConstraint(Sketcher.Constraint("Coincident", 19, 2, 16, 1))
sketch3.addConstraint(Sketcher.Constraint("Coincident", 20, 2, 21, 1))
sketch3.addConstraint(Sketcher.Constraint("Coincident", 21, 2, 22, 1))
sketch3.addConstraint(Sketcher.Constraint("Coincident", 22, 2, 23, 1))
sketch3.addConstraint(Sketcher.Constraint("Coincident", 23, 2, 20, 1))
sketch3.addConstraint(Sketcher.Constraint("Vertical", 0))
sketch3.addConstraint(Sketcher.Constraint("Vertical", 2))
sketch3.addConstraint(Sketcher.Constraint("Horizontal", 3))
sketch3.addConstraint(Sketcher.Constraint("Vertical", 12))
sketch3.addConstraint(Sketcher.Constraint("Horizontal", 13))
sketch3.addConstraint(Sketcher.Constraint("Vertical", 14))
sketch3.addConstraint(Sketcher.Constraint("Equal", 1, 7))
sketch3.addConstraint(Sketcher.Constraint("Equal", 7, 11))
sketch3.addConstraint(Sketcher.Constraint("Equal", 11, 15))
sketch3.addConstraint(Sketcher.Constraint("Equal", 15, 19))
sketch3.addConstraint(Sketcher.Constraint("Equal", 19, 23))
sketch3.addConstraint(Sketcher.Constraint("Symmetric", 1, 3, 15, 3, -1, 1))
sketch3.addConstraint(Sketcher.Constraint("Symmetric", 7, 3, 19, 3, -1, 1))
sketch3.addConstraint(Sketcher.Constraint("Symmetric", 11, 3, 23, 3, -1, 1))
sketch3.addConstraint(Sketcher.Constraint("Symmetric", 2, 2, 12, 2, -1, 1))
sketch3.addConstraint(Sketcher.Constraint("Symmetric", 4, 2, 16, 2, -1, 1))
sketch3.addConstraint(Sketcher.Constraint("Symmetric", 5, 2, 17, 2, -1, 1))
sketch3.addConstraint(Sketcher.Constraint("Symmetric", 8, 2, 20, 2, -1, 1))
sketch3.addConstraint(Sketcher.Constraint("Symmetric", 9, 2, 21, 2, -1, 1))
sketch3.addConstraint(Sketcher.Constraint("Perpendicular", 4, 5))
sketch3.addConstraint(Sketcher.Constraint("Perpendicular", 5, 6))
sketch3.addConstraint(Sketcher.Constraint("Perpendicular", 8, 9))
sketch3.addConstraint(Sketcher.Constraint("Perpendicular", 9, 10))
sketch3.addConstraint(Sketcher.Constraint("Parallel", 6, 16))
sketch3.addConstraint(Sketcher.Constraint("Perpendicular", 17, 18))
sketch3.addConstraint(Sketcher.Constraint("Parallel", 10, 20))
sketch3.addConstraint(Sketcher.Constraint("Perpendicular", 21, 22))
sketch3.addConstraint(Sketcher.Constraint("Horizontal", 0, 2, 1, 2))
sketch3.addConstraint(Sketcher.Constraint("Horizontal", 14, 2, 15, 2))
sketch3.addConstraint(Sketcher.Constraint("Equal", 4, 6))
sketch3.addConstraint(Sketcher.Constraint("Equal", 6, 8))
sketch3.addConstraint(Sketcher.Constraint("Equal", 5, 9))
sketch3.addConstraint(Sketcher.Constraint("Equal", 8, 10))
sketch3.addConstraint(Sketcher.Constraint("Angle", 4, Q("-30 deg")))
sketch3.addConstraint(Sketcher.Constraint("Angle", 8, Q("30 deg")))
sketch3.addConstraint(Sketcher.Constraint("Radius", 1, Q("0.0625 in")))
sketch3.addConstraint(Sketcher.Constraint("DistanceX", 3, 1, 3, 2, Q("0.11 in")))
sketch3.addConstraint(Sketcher.Constraint("DistanceY", 0, 1, 0, 2, Q("0.03 in")))
sketch3.addConstraint(Sketcher.Constraint("Distance", 4, Q("0.03 in")))
sketch3.addConstraint(Sketcher.Constraint("Distance", 5, Q("0.11 in")))
sketch3.addConstraint(Sketcher.Constraint("DistanceX", -1, 1, 0, 2, Q("0.68 in")))
sketch3.addConstraint(Sketcher.Constraint("DistanceX", 8, 2, 4, 2, Q("0.57 in")))
sketch3.addConstraint(Sketcher.Constraint("DistanceY", -1, 1, 0, 2, Q("1.6925 in")))
sketch3.addConstraint(Sketcher.Constraint("DistanceY", 8, 2, 4, 2, Q("1.6625 in")))
sketch3.addConstraint(Sketcher.Constraint("DistanceX", 7, 3, -1, 1, 29.9455))
sketch3.addConstraint(Sketcher.Constraint("DistanceY", -1, 1, 5, 2, 36.071741))
sketch3.setExpression("Constraints[59]", "Params.sketch3_radius")
sketch3.setExpression("Constraints[60]", "Params.sketch3_width")
sketch3.setExpression("Constraints[61]", "Params.sketch3_height")
sketch3.setExpression("Constraints[62]", "Params.sketch3_length")
sketch3.setExpression("Constraints[63]", "Params.sketch3_length2")
pad2 = doc.addObject("PartDesign::Pad", "Pad001")
body.addObject(pad2)
pad2.Profile = sketch3
pad2.setExpression("Length", "Params.pad2_length")

doc.recompute()
